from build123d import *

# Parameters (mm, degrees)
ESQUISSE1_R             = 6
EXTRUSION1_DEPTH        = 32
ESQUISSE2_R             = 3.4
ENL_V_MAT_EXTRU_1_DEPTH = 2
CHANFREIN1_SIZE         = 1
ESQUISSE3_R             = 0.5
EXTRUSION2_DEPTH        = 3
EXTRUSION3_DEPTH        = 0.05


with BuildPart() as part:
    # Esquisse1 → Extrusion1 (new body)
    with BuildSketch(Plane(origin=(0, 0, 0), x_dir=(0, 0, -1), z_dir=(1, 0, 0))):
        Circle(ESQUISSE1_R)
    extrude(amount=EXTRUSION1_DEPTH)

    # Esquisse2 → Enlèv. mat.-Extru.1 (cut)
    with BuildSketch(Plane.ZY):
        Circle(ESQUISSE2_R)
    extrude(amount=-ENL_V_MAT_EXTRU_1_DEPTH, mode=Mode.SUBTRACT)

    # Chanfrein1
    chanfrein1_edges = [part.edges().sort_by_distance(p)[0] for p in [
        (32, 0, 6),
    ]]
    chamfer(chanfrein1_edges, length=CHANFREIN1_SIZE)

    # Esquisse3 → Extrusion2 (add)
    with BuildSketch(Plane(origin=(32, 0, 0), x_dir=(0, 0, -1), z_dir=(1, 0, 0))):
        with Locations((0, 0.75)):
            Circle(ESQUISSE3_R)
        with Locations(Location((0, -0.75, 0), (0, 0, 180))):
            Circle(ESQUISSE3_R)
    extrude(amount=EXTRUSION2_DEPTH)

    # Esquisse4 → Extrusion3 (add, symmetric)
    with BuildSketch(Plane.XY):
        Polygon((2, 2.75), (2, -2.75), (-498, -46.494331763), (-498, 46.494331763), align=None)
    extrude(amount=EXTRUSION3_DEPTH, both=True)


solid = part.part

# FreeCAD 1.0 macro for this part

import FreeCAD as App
import Part
import Sketcher
from FreeCAD import Vector
Q = App.Units.Quantity


def edges_at(feature, points):
    """Names of the edges that pass closest to the given points."""
    edges = feature.Shape.Edges
    near = lambda p: min(range(len(edges)), key=lambda i: edges[i].distToShape(Part.Vertex(*p))[0])
    return sorted({f"Edge{near(p) + 1}" for p in points})

doc = App.newDocument("Part")
body = doc.addObject("PartDesign::Body", "Body")

sketch1 = body.newObject("Sketcher::SketchObject", "Sketch")
sketch1.AttachmentSupport = (doc.getObject("YZ_Plane"), [""])
sketch1.MapMode = "FlatFace"
sketch1.addGeometry(Part.Circle(Vector(0, 0, 0), Vector(0, 0, 1), 6), False)
sketch1.addConstraint([
    Sketcher.Constraint("Coincident", 0, 3, -1, 1),
    Sketcher.Constraint("Diameter", 0, 12.0),
])
pad1 = body.newObject("PartDesign::Pad", "Pad")
pad1.Profile = sketch1
pad1.Length = 32

sketch2 = body.newObject("Sketcher::SketchObject", "Sketch001")
sketch2.AttachmentSupport = (doc.getObject("YZ_Plane"), [""])
sketch2.MapMode = "FlatFace"
sketch2.addGeometry(Part.Circle(Vector(0, 0, 0), Vector(0, 0, 1), 3.4), False)
sketch2.addConstraint([
    Sketcher.Constraint("Coincident", 0, 3, -1, 1),
    Sketcher.Constraint("Diameter", 0, 6.8),
])
pocket1 = body.newObject("PartDesign::Pocket", "Pocket")
pocket1.Profile = sketch2
pocket1.Length = 2
pocket1.Reversed = True
doc.recompute()

chamfer = body.newObject("PartDesign::Chamfer", "Chamfer")
chamfer.Base = (pocket1, edges_at(pocket1, [(32, 0, 6)]))
chamfer.Size = 1

sketch3 = body.newObject("Sketcher::SketchObject", "Sketch002")
sketch3.AttachmentSupport = (doc.getObject("YZ_Plane"), [""])
sketch3.MapMode = "FlatFace"
sketch3.AttachmentOffset = App.Placement(Vector(0, 0, 32), App.Rotation())
sketch3.addGeometry([
    Part.Circle(Vector(0.8, 0, 0), Vector(0, 0, 1), 0.5),
    Part.Circle(Vector(-0.8, 0, 0), Vector(0, 0, 1), 0.5),
], False)
sketch3.addConstraint([
    Sketcher.Constraint("Equal", 0, 1),
    Sketcher.Constraint("Symmetric", 0, 3, 1, 3, -1, 1),
    Sketcher.Constraint("PointOnObject", 0, 3, -1),
    Sketcher.Constraint("Diameter", 0, 1.0),
    Sketcher.Constraint("DistanceX", 1, 3, 0, 3, 1.5),
])
pad2 = body.newObject("PartDesign::Pad", "Pad001")
pad2.Profile = sketch3
pad2.Length = 3

sketch4 = body.newObject("Sketcher::SketchObject", "Sketch003")
sketch4.AttachmentSupport = (doc.getObject("XY_Plane"), [""])
sketch4.MapMode = "FlatFace"
sketch4.addGeometry([
    Part.LineSegment(Vector(2, -3, 0), Vector(2, 3, 0)),
    Part.LineSegment(Vector(2, 3, 0), Vector(-498, 46, 0)),
    Part.LineSegment(Vector(-498, 46, 0), Vector(-498, -46, 0)),
    Part.LineSegment(Vector(-498, -46, 0), Vector(2, -3, 0)),
], False)
sketch4.addConstraint([
    Sketcher.Constraint("Coincident", 0, 2, 1, 1),
    Sketcher.Constraint("Coincident", 1, 2, 2, 1),
    Sketcher.Constraint("Coincident", 2, 2, 3, 1),
    Sketcher.Constraint("Coincident", 3, 2, 0, 1),
    Sketcher.Constraint("Vertical", 0),
    Sketcher.Constraint("Vertical", 2),
    Sketcher.Constraint("Equal", 1, 3),
    Sketcher.Constraint("Angle", 1, Q("175 deg")),
    Sketcher.Constraint("DistanceY", 0, 1, 0, 2, 5.5),
    Sketcher.Constraint("DistanceX", -1, 1, 0, 2, 2.0),
    Sketcher.Constraint("DistanceX", 1, 2, -1, 1, 498.0),
    Sketcher.Constraint("DistanceY", -1, 1, 0, 2, 2.75),
])
pad3 = body.newObject("PartDesign::Pad", "Pad002")
pad3.Profile = sketch4
pad3.Length = 0.1
pad3.Midplane = True

doc.recompute()
